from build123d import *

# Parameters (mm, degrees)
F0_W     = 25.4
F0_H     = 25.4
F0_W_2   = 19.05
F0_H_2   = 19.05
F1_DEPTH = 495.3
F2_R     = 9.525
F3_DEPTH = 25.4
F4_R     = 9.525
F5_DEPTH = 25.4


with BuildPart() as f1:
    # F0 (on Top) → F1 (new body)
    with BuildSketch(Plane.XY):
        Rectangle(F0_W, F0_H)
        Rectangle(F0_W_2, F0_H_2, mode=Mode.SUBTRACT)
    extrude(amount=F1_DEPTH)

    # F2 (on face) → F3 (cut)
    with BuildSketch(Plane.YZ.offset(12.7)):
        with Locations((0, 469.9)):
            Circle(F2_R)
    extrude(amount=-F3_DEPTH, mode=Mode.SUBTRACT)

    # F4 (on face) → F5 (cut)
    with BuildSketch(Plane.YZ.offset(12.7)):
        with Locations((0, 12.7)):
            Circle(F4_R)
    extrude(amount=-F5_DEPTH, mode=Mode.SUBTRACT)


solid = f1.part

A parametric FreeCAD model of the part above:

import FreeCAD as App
import Part
import Sketcher

V = App.Vector
Q = App.Units.Quantity


def add_polygon(sketch, points):
    """Adds a closed chain of lines whose ends are joined by coincident constraints."""
    first, n = sketch.GeometryCount, len(points)
    for a, b in zip(points, points[1:] + points[:1]):
        sketch.addGeometry(Part.LineSegment(App.Vector(*a, 0), App.Vector(*b, 0)), False)
    for i in range(n):
        sketch.addConstraint(Sketcher.Constraint("Coincident", first + i, 2, first + (i + 1) % n, 1))

doc = App.newDocument("Part")
body = doc.addObject("PartDesign::Body", "Body")

# Sketch on XY plane
sketch1 = body.newObject("Sketcher::SketchObject", "Sketch")
sketch1.AttachmentSupport = (doc.getObject("XY_Plane"), [""])
sketch1.MapMode = "FlatFace"
add_polygon(sketch1, [(-13, 13), (-13, -13), (13, -13), (13, 13)])  # lines 0-3
add_polygon(sketch1, [(10, -10), (-10, -10), (-10, 10), (10, 10)])  # lines 4-7
sketch1.addConstraint(Sketcher.Constraint("Vertical", 0))
sketch1.addConstraint(Sketcher.Constraint("Horizontal", 1))
sketch1.addConstraint(Sketcher.Constraint("Vertical", 2))
sketch1.addConstraint(Sketcher.Constraint("Horizontal", 3))
sketch1.addConstraint(Sketcher.Constraint("Horizontal", 4))
sketch1.addConstraint(Sketcher.Constraint("Vertical", 5))
sketch1.addConstraint(Sketcher.Constraint("Horizontal", 6))
sketch1.addConstraint(Sketcher.Constraint("Vertical", 7))
sketch1.addConstraint(Sketcher.Constraint("Symmetric", 0, 2, 2, 2, -1, 1))
sketch1.addConstraint(Sketcher.Constraint("Symmetric", 4, 2, 6, 2, -1, 1))
sketch1.addConstraint(Sketcher.Constraint("Equal", 3, 0))
sketch1.addConstraint(Sketcher.Constraint("Equal", 6, 5))
sketch1.addConstraint(Sketcher.Constraint("DistanceX", 1, 1, 1, 2, Q("1 in")))
sketch1.addConstraint(Sketcher.Constraint("DistanceX", 4, 2, 4, 1, Q("0.75 in")))
pad1 = body.newObject("PartDesign::Pad", "Pad")
pad1.Profile = sketch1
pad1.Length = Q("19.5 in")

# Sketch on YZ plane
sketch2 = body.newObject("Sketcher::SketchObject", "Sketch001")
sketch2.AttachmentSupport = (doc.getObject("YZ_Plane"), [""])
sketch2.MapMode = "FlatFace"
sketch2.AttachmentOffset = App.Placement(V(0, 0, 0.5 * 25.4), App.Rotation())
sketch2.addGeometry(Part.Circle(V(0, 470, 0), V(0, 0, 1), 10), False)
sketch2.addConstraint(Sketcher.Constraint("PointOnObject", 0, 3, -2))
sketch2.addConstraint(Sketcher.Constraint("Diameter", 0, Q("0.75 in")))
sketch2.addConstraint(Sketcher.Constraint("DistanceY", -1, 1, 0, 3, Q("18.5 in")))
pocket1 = body.newObject("PartDesign::Pocket", "Pocket")
pocket1.Profile = sketch2
pocket1.Length = Q("1 in")

# Sketch on YZ plane
sketch3 = body.newObject("Sketcher::SketchObject", "Sketch002")
sketch3.AttachmentSupport = (doc.getObject("YZ_Plane"), [""])
sketch3.MapMode = "FlatFace"
sketch3.AttachmentOffset = App.Placement(V(0, 0, 0.5 * 25.4), App.Rotation())
sketch3.addGeometry(Part.Circle(V(0, 13, 0), V(0, 0, 1), 10), False)
sketch3.addConstraint(Sketcher.Constraint("PointOnObject", 0, 3, -2))
sketch3.addConstraint(Sketcher.Constraint("Diameter", 0, Q("0.75 in")))
sketch3.addConstraint(Sketcher.Constraint("DistanceY", -1, 1, 0, 3, Q("0.5 in")))
pocket2 = body.newObject("PartDesign::Pocket", "Pocket001")
pocket2.Profile = sketch3
pocket2.Length = Q("1 in")

doc.recompute()
